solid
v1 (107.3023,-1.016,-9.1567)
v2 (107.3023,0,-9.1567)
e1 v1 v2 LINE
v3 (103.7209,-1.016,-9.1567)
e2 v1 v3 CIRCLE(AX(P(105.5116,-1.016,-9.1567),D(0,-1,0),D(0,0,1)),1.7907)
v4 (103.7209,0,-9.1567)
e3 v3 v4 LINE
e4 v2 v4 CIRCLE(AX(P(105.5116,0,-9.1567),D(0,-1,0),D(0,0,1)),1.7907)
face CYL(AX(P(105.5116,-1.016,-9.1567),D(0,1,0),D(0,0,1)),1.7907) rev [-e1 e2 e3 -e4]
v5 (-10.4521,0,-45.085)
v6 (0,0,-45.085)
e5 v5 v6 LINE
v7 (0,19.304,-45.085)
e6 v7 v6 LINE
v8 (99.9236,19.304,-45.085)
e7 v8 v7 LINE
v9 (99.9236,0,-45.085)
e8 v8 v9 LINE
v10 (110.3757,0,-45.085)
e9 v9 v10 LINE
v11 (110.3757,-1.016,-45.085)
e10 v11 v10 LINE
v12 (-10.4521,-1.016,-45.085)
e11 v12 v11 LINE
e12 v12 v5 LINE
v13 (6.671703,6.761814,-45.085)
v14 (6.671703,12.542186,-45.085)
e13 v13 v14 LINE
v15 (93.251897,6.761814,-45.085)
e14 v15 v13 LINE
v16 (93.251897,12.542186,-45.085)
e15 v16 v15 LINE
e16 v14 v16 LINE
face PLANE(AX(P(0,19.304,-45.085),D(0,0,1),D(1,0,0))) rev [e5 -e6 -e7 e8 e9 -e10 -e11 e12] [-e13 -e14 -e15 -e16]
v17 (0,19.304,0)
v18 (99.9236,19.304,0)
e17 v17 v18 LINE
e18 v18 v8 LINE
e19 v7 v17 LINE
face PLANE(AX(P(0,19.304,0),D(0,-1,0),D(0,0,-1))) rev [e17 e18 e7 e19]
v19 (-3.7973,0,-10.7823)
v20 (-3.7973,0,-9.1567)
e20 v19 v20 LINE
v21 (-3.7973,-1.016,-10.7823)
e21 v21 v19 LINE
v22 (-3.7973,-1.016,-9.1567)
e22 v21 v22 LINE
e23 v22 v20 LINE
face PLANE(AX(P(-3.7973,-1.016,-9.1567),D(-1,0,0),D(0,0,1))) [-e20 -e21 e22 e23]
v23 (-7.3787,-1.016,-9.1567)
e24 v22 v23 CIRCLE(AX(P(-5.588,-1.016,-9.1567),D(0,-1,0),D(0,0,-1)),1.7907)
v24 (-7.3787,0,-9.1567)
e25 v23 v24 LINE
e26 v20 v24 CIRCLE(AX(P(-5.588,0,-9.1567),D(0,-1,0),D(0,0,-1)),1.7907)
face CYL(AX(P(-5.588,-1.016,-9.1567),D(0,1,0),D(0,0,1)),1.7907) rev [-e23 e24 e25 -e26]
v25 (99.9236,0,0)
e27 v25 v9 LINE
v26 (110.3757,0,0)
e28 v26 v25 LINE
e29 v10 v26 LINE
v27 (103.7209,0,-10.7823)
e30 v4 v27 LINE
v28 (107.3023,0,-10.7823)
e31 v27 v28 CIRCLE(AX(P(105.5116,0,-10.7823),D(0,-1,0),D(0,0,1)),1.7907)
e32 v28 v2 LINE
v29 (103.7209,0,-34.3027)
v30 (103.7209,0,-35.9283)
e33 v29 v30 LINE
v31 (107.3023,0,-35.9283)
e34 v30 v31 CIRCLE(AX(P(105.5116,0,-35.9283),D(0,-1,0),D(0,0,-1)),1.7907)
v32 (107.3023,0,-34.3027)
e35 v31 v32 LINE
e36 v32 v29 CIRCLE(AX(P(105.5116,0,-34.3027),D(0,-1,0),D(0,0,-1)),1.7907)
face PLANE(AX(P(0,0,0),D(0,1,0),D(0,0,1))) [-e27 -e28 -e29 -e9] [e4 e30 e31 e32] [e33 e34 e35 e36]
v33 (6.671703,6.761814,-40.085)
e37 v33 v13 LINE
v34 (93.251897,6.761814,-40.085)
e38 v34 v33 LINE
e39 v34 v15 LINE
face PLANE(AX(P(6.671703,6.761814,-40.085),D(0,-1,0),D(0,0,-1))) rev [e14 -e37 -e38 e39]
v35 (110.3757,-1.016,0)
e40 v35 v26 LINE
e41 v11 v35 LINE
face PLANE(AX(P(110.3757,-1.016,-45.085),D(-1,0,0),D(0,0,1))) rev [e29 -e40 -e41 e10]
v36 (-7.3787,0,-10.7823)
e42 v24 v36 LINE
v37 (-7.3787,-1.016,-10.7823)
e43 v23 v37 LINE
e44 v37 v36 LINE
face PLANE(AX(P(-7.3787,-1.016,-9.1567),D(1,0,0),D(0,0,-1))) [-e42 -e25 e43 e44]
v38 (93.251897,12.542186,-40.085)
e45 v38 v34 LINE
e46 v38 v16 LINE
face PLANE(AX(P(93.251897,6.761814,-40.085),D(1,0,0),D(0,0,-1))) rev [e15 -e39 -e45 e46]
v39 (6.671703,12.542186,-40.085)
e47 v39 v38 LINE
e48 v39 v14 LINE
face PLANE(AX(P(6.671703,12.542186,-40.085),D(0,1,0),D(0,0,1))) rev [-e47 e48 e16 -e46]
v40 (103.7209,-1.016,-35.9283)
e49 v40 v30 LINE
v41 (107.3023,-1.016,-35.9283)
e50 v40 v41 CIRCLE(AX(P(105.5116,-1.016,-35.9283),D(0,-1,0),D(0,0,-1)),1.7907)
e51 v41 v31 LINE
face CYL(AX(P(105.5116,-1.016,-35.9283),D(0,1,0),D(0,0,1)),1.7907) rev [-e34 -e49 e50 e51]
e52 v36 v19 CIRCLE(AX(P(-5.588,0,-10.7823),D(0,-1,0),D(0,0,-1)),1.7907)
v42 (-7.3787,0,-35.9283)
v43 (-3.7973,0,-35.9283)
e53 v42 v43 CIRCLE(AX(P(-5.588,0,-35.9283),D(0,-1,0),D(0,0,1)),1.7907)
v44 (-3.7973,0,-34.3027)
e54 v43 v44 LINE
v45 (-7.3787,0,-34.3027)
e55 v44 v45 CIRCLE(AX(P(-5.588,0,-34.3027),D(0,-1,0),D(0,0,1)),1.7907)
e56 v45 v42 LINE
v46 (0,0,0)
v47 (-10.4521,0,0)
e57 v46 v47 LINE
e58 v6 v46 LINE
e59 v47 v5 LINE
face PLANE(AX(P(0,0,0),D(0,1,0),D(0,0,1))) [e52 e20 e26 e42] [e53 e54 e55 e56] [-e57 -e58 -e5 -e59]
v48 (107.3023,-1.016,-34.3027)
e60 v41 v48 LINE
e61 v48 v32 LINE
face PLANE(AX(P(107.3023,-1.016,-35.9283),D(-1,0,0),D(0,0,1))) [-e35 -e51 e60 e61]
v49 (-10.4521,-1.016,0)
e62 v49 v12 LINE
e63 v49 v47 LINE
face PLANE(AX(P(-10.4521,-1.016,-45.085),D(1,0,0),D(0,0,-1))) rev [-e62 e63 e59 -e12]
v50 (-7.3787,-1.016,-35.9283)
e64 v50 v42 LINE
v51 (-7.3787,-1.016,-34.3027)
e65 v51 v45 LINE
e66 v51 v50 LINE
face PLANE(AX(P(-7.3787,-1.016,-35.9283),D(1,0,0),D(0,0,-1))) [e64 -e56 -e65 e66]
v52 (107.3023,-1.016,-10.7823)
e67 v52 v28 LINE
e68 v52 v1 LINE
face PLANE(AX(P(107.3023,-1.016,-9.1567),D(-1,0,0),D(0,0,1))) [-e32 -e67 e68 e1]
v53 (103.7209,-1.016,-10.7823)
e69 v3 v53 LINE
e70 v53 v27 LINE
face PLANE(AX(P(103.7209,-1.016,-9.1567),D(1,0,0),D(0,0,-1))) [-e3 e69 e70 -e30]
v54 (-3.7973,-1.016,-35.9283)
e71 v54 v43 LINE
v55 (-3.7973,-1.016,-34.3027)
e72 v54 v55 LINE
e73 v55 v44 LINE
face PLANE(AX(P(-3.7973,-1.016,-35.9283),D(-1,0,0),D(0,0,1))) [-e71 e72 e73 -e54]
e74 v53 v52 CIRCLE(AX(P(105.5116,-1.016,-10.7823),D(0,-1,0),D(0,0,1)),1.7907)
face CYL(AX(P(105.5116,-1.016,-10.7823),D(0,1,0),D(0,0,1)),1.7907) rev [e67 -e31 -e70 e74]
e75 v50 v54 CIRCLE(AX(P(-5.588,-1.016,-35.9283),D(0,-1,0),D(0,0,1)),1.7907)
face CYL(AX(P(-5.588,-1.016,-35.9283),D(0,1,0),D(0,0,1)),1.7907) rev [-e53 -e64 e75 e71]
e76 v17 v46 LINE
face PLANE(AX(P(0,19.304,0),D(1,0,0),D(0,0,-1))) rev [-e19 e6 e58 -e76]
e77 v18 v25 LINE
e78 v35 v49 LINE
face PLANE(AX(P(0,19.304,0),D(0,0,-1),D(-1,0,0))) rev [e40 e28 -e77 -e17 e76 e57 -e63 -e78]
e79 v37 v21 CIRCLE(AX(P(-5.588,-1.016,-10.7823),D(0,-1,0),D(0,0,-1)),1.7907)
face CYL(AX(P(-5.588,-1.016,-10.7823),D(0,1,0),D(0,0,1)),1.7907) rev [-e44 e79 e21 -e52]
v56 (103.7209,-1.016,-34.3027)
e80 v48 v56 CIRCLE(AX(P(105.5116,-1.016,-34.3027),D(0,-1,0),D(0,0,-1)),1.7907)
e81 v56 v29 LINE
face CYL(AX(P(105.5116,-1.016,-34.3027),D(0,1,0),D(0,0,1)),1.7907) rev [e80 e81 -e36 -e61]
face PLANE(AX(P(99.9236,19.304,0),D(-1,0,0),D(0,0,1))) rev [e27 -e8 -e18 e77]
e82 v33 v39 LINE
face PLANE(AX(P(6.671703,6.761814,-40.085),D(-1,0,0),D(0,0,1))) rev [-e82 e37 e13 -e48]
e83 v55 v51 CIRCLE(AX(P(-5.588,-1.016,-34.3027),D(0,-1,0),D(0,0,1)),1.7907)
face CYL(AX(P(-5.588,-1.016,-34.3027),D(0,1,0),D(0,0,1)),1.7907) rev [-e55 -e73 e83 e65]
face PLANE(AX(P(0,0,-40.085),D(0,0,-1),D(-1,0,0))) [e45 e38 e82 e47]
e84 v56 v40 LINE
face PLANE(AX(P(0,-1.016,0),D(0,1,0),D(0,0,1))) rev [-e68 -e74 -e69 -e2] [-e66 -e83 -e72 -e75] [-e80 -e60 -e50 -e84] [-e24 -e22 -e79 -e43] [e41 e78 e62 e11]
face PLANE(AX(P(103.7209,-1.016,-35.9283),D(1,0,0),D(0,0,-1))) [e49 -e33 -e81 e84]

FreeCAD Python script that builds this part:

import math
import FreeCAD as App
import Part
import Sketcher
from FreeCAD import Vector
Q = App.Units.Quantity


def add_polygon(sketch, points):
    """Adds a closed chain of lines whose ends are joined by coincident constraints."""
    first, n = sketch.GeometryCount, len(points)
    for a, b in zip(points, points[1:] + points[:1]):
        sketch.addGeometry(Part.LineSegment(App.Vector(*a, 0), App.Vector(*b, 0)), False)
    for i in range(n):
        sketch.addConstraint(Sketcher.Constraint("Coincident", first + i, 2, first + (i + 1) % n, 1))

doc = App.newDocument("Part")
body = doc.addObject("PartDesign::Body", "Body")

# Sketch on XZ plane
sketch1 = doc.addObject("Sketcher::SketchObject", "Sketch")
body.addObject(sketch1)
sketch1.AttachmentSupport = (doc.XZ_Plane, [""])
sketch1.MapMode = "FlatFace"
add_polygon(sketch1, [(0, -45.085), (0, 0), (99.9236, 0), (99.9236, -45.085)])  # lines 0-3
sketch1.addConstraint(Sketcher.Constraint("Vertical", 0))
sketch1.addConstraint(Sketcher.Constraint("Horizontal", 1))
sketch1.addConstraint(Sketcher.Constraint("Vertical", 2))
sketch1.addConstraint(Sketcher.Constraint("Horizontal", 3))
sketch1.addConstraint(Sketcher.Constraint("Coincident", 0, 2, -1, 1))
sketch1.addConstraint(Sketcher.Constraint("DistanceX", 1, 1, 1, 2, Q("3.934 in")))
sketch1.addConstraint(Sketcher.Constraint("DistanceY", 0, 1, 0, 2, Q("1.775 in")))
pad1 = doc.addObject("PartDesign::Pad", "Pad")
body.addObject(pad1)
pad1.Profile = sketch1
pad1.Length = Q("0.76 in")
pad1.Reversed = True

# Sketch on XZ plane
sketch2 = doc.addObject("Sketcher::SketchObject", "Sketch001")
body.addObject(sketch2)
sketch2.AttachmentSupport = (doc.XZ_Plane, [""])
sketch2.MapMode = "FlatFace"
add_polygon(sketch2, [(-10.4521, 0), (-10.4521, -45.085), (110.3757, -45.085), (110.3757, 0)])  # lines 0-3
sketch2.addGeometry(Part.LineSegment(Vector(-3.7973, -34.3027, 0), Vector(-3.7973, -35.9283, 0)), False)  # 4
sketch2.addGeometry(Part.ArcOfCircle(Part.Circle(Vector(-5.588, -35.9283, 0), Vector(0, 0, 1), 1.7907), math.radians(180), math.radians(360)), False)  # 5
sketch2.addGeometry(Part.LineSegment(Vector(-7.3787, -35.9283, 0), Vector(-7.3787, -34.3027, 0)), False)  # 6
sketch2.addGeometry(Part.ArcOfCircle(Part.Circle(Vector(-5.588, -34.3027, 0), Vector(0, 0, 1), 1.7907), math.radians(0), math.radians(180)), False)  # 7
sketch2.addGeometry(Part.ArcOfCircle(Part.Circle(Vector(105.5116, -35.9283, 0), Vector(0, 0, 1), 1.7907), math.radians(180), math.radians(360)), False)  # 8
sketch2.addGeometry(Part.LineSegment(Vector(103.7209, -35.9283, 0), Vector(103.7209, -34.3027, 0)), False)  # 9
sketch2.addGeometry(Part.ArcOfCircle(Part.Circle(Vector(105.5116, -34.3027, 0), Vector(0, 0, 1), 1.7907), math.radians(0), math.radians(180)), False)  # 10
sketch2.addGeometry(Part.LineSegment(Vector(107.3023, -34.3027, 0), Vector(107.3023, -35.9283, 0)), False)  # 11
sketch2.addGeometry(Part.ArcOfCircle(Part.Circle(Vector(-5.588, -9.1567, 0), Vector(0, 0, 1), 1.7907), math.radians(0), math.radians(180)), False)  # 12
sketch2.addGeometry(Part.LineSegment(Vector(-3.7973, -9.1567, 0), Vector(-3.7973, -10.7823, 0)), False)  # 13
sketch2.addGeometry(Part.ArcOfCircle(Part.Circle(Vector(-5.588, -10.7823, 0), Vector(0, 0, 1), 1.7907), math.radians(180), math.radians(360)), False)  # 14
sketch2.addGeometry(Part.LineSegment(Vector(-7.3787, -10.7823, 0), Vector(-7.3787, -9.1567, 0)), False)  # 15
sketch2.addGeometry(Part.LineSegment(Vector(103.7209, -10.7823, 0), Vector(103.7209, -9.1567, 0)), False)  # 16
sketch2.addGeometry(Part.ArcOfCircle(Part.Circle(Vector(105.5116, -9.1567, 0), Vector(0, 0, 1), 1.7907), math.radians(0), math.radians(180)), False)  # 17
sketch2.addGeometry(Part.LineSegment(Vector(107.3023, -9.1567, 0), Vector(107.3023, -10.7823, 0)), False)  # 18
sketch2.addGeometry(Part.ArcOfCircle(Part.Circle(Vector(105.5116, -10.7823, 0), Vector(0, 0, 1), 1.7907), math.radians(180), math.radians(360)), False)  # 19
sketch2.addConstraint(Sketcher.Constraint("Tangent", 4, 2, 5, 2))
sketch2.addConstraint(Sketcher.Constraint("Tangent", 5, 1, 6, 1))
sketch2.addConstraint(Sketcher.Constraint("Tangent", 6, 2, 7, 2))
sketch2.addConstraint(Sketcher.Constraint("Tangent", 7, 1, 4, 1))
sketch2.addConstraint(Sketcher.Constraint("Tangent", 8, 1, 9, 1))
sketch2.addConstraint(Sketcher.Constraint("Tangent", 9, 2, 10, 2))
sketch2.addConstraint(Sketcher.Constraint("Tangent", 10, 1, 11, 1))
sketch2.addConstraint(Sketcher.Constraint("Tangent", 11, 2, 8, 2))
sketch2.addConstraint(Sketcher.Constraint("Tangent", 12, 1, 13, 1))
sketch2.addConstraint(Sketcher.Constraint("Tangent", 13, 2, 14, 2))
sketch2.addConstraint(Sketcher.Constraint("Tangent", 14, 1, 15, 1))
sketch2.addConstraint(Sketcher.Constraint("Tangent", 15, 2, 12, 2))
sketch2.addConstraint(Sketcher.Constraint("Tangent", 16, 2, 17, 2))
sketch2.addConstraint(Sketcher.Constraint("Tangent", 17, 1, 18, 1))
sketch2.addConstraint(Sketcher.Constraint("Tangent", 18, 2, 19, 2))
sketch2.addConstraint(Sketcher.Constraint("Tangent", 19, 1, 16, 1))
sketch2.addConstraint(Sketcher.Constraint("Vertical", 0))
sketch2.addConstraint(Sketcher.Constraint("Horizontal", 1))
sketch2.addConstraint(Sketcher.Constraint("Vertical", 2))
sketch2.addConstraint(Sketcher.Constraint("Horizontal", 3))
sketch2.addConstraint(Sketcher.Constraint("Vertical", 4))
sketch2.addConstraint(Sketcher.Constraint("Vertical", 6))
sketch2.addConstraint(Sketcher.Constraint("Vertical", 9))
sketch2.addConstraint(Sketcher.Constraint("Vertical", 11))
sketch2.addConstraint(Sketcher.Constraint("Vertical", 13))
sketch2.addConstraint(Sketcher.Constraint("Vertical", 15))
sketch2.addConstraint(Sketcher.Constraint("Vertical", 16))
sketch2.addConstraint(Sketcher.Constraint("Vertical", 18))
sketch2.addConstraint(Sketcher.Constraint("Equal", 7, 8))
sketch2.addConstraint(Sketcher.Constraint("Equal", 10, 12))
sketch2.addConstraint(Sketcher.Constraint("Equal", 14, 17))
sketch2.addConstraint(Sketcher.Constraint("PointOnObject", 2, 2, -1))
sketch2.addConstraint(Sketcher.Constraint("Horizontal", 5, 3, 8, 3))
sketch2.addConstraint(Sketcher.Constraint("Horizontal", 7, 3, 10, 3))
sketch2.addConstraint(Sketcher.Constraint("Horizontal", 12, 3, 17, 3))
sketch2.addConstraint(Sketcher.Constraint("Horizontal", 14, 3, 19, 3))
sketch2.addConstraint(Sketcher.Constraint("Vertical", 7, 3, 12, 3))
sketch2.addConstraint(Sketcher.Constraint("Vertical", 10, 3, 17, 3))
sketch2.addConstraint(Sketcher.Constraint("Equal", 11, 13))
sketch2.addConstraint(Sketcher.Constraint("Radius", 5, Q("0.0705 in")))
sketch2.addConstraint(Sketcher.Constraint("DistanceX", 1, 1, 1, 2, Q("4.757 in")))
sketch2.addConstraint(Sketcher.Constraint("DistanceY", 0, 2, 0, 1, Q("1.775 in")))
sketch2.addConstraint(Sketcher.Constraint("DistanceY", 4, 2, 4, 1, Q("0.064 in")))
sketch2.addConstraint(Sketcher.Constraint("DistanceX", 5, 3, -1, 1, Q("0.22 in")))
sketch2.addConstraint(Sketcher.Constraint("DistanceY", 7, 3, 12, 3, Q("0.99 in")))
sketch2.addConstraint(Sketcher.Constraint("DistanceX", -1, 1, 8, 3, Q("4.154 in")))
sketch2.addConstraint(Sketcher.Constraint("DistanceX", 0, 2, 4, 2, Q("0.262 in")))
sketch2.addConstraint(Sketcher.Constraint("DistanceY", 5, 3, -1, 1, Q("1.4145 in")))
pad2 = doc.addObject("PartDesign::Pad", "Pad001")
body.addObject(pad2)
pad2.Profile = sketch2
pad2.Length = Q("0.04 in")

# Sketch on XY plane
sketch3 = doc.addObject("Sketcher::SketchObject", "Sketch002")
body.addObject(sketch3)
sketch3.AttachmentSupport = (doc.XY_Plane, [""])
sketch3.MapMode = "FlatFace"
sketch3.AttachmentOffset = App.Placement(Vector(0, 0, -1.775 * 25.4), App.Rotation())
add_polygon(sketch3, [(93.251897, 12.542186), (93.251897, 6.761814), (6.671703, 6.761814), (6.671703, 12.542186)])  # lines 0-3
sketch3.addConstraint(Sketcher.Constraint("Vertical", 0))
sketch3.addConstraint(Sketcher.Constraint("Horizontal", 1))
sketch3.addConstraint(Sketcher.Constraint("Vertical", 2))
sketch3.addConstraint(Sketcher.Constraint("Horizontal", 3))
sketch3.addConstraint(Sketcher.Constraint("DistanceX", 1, 2, 1, 1, 86.580194))
sketch3.addConstraint(Sketcher.Constraint("DistanceY", 0, 2, 0, 1, 5.780373))
sketch3.addConstraint(Sketcher.Constraint("DistanceX", -1, 1, 0, 2, 93.251897))
sketch3.addConstraint(Sketcher.Constraint("DistanceY", -1, 1, 0, 2, 6.761814))
pocket1 = doc.addObject("PartDesign::Pocket", "Pocket")
body.addObject(pocket1)
pocket1.Profile = sketch3
pocket1.Length = 5
pocket1.Reversed = True

doc.recompute()
